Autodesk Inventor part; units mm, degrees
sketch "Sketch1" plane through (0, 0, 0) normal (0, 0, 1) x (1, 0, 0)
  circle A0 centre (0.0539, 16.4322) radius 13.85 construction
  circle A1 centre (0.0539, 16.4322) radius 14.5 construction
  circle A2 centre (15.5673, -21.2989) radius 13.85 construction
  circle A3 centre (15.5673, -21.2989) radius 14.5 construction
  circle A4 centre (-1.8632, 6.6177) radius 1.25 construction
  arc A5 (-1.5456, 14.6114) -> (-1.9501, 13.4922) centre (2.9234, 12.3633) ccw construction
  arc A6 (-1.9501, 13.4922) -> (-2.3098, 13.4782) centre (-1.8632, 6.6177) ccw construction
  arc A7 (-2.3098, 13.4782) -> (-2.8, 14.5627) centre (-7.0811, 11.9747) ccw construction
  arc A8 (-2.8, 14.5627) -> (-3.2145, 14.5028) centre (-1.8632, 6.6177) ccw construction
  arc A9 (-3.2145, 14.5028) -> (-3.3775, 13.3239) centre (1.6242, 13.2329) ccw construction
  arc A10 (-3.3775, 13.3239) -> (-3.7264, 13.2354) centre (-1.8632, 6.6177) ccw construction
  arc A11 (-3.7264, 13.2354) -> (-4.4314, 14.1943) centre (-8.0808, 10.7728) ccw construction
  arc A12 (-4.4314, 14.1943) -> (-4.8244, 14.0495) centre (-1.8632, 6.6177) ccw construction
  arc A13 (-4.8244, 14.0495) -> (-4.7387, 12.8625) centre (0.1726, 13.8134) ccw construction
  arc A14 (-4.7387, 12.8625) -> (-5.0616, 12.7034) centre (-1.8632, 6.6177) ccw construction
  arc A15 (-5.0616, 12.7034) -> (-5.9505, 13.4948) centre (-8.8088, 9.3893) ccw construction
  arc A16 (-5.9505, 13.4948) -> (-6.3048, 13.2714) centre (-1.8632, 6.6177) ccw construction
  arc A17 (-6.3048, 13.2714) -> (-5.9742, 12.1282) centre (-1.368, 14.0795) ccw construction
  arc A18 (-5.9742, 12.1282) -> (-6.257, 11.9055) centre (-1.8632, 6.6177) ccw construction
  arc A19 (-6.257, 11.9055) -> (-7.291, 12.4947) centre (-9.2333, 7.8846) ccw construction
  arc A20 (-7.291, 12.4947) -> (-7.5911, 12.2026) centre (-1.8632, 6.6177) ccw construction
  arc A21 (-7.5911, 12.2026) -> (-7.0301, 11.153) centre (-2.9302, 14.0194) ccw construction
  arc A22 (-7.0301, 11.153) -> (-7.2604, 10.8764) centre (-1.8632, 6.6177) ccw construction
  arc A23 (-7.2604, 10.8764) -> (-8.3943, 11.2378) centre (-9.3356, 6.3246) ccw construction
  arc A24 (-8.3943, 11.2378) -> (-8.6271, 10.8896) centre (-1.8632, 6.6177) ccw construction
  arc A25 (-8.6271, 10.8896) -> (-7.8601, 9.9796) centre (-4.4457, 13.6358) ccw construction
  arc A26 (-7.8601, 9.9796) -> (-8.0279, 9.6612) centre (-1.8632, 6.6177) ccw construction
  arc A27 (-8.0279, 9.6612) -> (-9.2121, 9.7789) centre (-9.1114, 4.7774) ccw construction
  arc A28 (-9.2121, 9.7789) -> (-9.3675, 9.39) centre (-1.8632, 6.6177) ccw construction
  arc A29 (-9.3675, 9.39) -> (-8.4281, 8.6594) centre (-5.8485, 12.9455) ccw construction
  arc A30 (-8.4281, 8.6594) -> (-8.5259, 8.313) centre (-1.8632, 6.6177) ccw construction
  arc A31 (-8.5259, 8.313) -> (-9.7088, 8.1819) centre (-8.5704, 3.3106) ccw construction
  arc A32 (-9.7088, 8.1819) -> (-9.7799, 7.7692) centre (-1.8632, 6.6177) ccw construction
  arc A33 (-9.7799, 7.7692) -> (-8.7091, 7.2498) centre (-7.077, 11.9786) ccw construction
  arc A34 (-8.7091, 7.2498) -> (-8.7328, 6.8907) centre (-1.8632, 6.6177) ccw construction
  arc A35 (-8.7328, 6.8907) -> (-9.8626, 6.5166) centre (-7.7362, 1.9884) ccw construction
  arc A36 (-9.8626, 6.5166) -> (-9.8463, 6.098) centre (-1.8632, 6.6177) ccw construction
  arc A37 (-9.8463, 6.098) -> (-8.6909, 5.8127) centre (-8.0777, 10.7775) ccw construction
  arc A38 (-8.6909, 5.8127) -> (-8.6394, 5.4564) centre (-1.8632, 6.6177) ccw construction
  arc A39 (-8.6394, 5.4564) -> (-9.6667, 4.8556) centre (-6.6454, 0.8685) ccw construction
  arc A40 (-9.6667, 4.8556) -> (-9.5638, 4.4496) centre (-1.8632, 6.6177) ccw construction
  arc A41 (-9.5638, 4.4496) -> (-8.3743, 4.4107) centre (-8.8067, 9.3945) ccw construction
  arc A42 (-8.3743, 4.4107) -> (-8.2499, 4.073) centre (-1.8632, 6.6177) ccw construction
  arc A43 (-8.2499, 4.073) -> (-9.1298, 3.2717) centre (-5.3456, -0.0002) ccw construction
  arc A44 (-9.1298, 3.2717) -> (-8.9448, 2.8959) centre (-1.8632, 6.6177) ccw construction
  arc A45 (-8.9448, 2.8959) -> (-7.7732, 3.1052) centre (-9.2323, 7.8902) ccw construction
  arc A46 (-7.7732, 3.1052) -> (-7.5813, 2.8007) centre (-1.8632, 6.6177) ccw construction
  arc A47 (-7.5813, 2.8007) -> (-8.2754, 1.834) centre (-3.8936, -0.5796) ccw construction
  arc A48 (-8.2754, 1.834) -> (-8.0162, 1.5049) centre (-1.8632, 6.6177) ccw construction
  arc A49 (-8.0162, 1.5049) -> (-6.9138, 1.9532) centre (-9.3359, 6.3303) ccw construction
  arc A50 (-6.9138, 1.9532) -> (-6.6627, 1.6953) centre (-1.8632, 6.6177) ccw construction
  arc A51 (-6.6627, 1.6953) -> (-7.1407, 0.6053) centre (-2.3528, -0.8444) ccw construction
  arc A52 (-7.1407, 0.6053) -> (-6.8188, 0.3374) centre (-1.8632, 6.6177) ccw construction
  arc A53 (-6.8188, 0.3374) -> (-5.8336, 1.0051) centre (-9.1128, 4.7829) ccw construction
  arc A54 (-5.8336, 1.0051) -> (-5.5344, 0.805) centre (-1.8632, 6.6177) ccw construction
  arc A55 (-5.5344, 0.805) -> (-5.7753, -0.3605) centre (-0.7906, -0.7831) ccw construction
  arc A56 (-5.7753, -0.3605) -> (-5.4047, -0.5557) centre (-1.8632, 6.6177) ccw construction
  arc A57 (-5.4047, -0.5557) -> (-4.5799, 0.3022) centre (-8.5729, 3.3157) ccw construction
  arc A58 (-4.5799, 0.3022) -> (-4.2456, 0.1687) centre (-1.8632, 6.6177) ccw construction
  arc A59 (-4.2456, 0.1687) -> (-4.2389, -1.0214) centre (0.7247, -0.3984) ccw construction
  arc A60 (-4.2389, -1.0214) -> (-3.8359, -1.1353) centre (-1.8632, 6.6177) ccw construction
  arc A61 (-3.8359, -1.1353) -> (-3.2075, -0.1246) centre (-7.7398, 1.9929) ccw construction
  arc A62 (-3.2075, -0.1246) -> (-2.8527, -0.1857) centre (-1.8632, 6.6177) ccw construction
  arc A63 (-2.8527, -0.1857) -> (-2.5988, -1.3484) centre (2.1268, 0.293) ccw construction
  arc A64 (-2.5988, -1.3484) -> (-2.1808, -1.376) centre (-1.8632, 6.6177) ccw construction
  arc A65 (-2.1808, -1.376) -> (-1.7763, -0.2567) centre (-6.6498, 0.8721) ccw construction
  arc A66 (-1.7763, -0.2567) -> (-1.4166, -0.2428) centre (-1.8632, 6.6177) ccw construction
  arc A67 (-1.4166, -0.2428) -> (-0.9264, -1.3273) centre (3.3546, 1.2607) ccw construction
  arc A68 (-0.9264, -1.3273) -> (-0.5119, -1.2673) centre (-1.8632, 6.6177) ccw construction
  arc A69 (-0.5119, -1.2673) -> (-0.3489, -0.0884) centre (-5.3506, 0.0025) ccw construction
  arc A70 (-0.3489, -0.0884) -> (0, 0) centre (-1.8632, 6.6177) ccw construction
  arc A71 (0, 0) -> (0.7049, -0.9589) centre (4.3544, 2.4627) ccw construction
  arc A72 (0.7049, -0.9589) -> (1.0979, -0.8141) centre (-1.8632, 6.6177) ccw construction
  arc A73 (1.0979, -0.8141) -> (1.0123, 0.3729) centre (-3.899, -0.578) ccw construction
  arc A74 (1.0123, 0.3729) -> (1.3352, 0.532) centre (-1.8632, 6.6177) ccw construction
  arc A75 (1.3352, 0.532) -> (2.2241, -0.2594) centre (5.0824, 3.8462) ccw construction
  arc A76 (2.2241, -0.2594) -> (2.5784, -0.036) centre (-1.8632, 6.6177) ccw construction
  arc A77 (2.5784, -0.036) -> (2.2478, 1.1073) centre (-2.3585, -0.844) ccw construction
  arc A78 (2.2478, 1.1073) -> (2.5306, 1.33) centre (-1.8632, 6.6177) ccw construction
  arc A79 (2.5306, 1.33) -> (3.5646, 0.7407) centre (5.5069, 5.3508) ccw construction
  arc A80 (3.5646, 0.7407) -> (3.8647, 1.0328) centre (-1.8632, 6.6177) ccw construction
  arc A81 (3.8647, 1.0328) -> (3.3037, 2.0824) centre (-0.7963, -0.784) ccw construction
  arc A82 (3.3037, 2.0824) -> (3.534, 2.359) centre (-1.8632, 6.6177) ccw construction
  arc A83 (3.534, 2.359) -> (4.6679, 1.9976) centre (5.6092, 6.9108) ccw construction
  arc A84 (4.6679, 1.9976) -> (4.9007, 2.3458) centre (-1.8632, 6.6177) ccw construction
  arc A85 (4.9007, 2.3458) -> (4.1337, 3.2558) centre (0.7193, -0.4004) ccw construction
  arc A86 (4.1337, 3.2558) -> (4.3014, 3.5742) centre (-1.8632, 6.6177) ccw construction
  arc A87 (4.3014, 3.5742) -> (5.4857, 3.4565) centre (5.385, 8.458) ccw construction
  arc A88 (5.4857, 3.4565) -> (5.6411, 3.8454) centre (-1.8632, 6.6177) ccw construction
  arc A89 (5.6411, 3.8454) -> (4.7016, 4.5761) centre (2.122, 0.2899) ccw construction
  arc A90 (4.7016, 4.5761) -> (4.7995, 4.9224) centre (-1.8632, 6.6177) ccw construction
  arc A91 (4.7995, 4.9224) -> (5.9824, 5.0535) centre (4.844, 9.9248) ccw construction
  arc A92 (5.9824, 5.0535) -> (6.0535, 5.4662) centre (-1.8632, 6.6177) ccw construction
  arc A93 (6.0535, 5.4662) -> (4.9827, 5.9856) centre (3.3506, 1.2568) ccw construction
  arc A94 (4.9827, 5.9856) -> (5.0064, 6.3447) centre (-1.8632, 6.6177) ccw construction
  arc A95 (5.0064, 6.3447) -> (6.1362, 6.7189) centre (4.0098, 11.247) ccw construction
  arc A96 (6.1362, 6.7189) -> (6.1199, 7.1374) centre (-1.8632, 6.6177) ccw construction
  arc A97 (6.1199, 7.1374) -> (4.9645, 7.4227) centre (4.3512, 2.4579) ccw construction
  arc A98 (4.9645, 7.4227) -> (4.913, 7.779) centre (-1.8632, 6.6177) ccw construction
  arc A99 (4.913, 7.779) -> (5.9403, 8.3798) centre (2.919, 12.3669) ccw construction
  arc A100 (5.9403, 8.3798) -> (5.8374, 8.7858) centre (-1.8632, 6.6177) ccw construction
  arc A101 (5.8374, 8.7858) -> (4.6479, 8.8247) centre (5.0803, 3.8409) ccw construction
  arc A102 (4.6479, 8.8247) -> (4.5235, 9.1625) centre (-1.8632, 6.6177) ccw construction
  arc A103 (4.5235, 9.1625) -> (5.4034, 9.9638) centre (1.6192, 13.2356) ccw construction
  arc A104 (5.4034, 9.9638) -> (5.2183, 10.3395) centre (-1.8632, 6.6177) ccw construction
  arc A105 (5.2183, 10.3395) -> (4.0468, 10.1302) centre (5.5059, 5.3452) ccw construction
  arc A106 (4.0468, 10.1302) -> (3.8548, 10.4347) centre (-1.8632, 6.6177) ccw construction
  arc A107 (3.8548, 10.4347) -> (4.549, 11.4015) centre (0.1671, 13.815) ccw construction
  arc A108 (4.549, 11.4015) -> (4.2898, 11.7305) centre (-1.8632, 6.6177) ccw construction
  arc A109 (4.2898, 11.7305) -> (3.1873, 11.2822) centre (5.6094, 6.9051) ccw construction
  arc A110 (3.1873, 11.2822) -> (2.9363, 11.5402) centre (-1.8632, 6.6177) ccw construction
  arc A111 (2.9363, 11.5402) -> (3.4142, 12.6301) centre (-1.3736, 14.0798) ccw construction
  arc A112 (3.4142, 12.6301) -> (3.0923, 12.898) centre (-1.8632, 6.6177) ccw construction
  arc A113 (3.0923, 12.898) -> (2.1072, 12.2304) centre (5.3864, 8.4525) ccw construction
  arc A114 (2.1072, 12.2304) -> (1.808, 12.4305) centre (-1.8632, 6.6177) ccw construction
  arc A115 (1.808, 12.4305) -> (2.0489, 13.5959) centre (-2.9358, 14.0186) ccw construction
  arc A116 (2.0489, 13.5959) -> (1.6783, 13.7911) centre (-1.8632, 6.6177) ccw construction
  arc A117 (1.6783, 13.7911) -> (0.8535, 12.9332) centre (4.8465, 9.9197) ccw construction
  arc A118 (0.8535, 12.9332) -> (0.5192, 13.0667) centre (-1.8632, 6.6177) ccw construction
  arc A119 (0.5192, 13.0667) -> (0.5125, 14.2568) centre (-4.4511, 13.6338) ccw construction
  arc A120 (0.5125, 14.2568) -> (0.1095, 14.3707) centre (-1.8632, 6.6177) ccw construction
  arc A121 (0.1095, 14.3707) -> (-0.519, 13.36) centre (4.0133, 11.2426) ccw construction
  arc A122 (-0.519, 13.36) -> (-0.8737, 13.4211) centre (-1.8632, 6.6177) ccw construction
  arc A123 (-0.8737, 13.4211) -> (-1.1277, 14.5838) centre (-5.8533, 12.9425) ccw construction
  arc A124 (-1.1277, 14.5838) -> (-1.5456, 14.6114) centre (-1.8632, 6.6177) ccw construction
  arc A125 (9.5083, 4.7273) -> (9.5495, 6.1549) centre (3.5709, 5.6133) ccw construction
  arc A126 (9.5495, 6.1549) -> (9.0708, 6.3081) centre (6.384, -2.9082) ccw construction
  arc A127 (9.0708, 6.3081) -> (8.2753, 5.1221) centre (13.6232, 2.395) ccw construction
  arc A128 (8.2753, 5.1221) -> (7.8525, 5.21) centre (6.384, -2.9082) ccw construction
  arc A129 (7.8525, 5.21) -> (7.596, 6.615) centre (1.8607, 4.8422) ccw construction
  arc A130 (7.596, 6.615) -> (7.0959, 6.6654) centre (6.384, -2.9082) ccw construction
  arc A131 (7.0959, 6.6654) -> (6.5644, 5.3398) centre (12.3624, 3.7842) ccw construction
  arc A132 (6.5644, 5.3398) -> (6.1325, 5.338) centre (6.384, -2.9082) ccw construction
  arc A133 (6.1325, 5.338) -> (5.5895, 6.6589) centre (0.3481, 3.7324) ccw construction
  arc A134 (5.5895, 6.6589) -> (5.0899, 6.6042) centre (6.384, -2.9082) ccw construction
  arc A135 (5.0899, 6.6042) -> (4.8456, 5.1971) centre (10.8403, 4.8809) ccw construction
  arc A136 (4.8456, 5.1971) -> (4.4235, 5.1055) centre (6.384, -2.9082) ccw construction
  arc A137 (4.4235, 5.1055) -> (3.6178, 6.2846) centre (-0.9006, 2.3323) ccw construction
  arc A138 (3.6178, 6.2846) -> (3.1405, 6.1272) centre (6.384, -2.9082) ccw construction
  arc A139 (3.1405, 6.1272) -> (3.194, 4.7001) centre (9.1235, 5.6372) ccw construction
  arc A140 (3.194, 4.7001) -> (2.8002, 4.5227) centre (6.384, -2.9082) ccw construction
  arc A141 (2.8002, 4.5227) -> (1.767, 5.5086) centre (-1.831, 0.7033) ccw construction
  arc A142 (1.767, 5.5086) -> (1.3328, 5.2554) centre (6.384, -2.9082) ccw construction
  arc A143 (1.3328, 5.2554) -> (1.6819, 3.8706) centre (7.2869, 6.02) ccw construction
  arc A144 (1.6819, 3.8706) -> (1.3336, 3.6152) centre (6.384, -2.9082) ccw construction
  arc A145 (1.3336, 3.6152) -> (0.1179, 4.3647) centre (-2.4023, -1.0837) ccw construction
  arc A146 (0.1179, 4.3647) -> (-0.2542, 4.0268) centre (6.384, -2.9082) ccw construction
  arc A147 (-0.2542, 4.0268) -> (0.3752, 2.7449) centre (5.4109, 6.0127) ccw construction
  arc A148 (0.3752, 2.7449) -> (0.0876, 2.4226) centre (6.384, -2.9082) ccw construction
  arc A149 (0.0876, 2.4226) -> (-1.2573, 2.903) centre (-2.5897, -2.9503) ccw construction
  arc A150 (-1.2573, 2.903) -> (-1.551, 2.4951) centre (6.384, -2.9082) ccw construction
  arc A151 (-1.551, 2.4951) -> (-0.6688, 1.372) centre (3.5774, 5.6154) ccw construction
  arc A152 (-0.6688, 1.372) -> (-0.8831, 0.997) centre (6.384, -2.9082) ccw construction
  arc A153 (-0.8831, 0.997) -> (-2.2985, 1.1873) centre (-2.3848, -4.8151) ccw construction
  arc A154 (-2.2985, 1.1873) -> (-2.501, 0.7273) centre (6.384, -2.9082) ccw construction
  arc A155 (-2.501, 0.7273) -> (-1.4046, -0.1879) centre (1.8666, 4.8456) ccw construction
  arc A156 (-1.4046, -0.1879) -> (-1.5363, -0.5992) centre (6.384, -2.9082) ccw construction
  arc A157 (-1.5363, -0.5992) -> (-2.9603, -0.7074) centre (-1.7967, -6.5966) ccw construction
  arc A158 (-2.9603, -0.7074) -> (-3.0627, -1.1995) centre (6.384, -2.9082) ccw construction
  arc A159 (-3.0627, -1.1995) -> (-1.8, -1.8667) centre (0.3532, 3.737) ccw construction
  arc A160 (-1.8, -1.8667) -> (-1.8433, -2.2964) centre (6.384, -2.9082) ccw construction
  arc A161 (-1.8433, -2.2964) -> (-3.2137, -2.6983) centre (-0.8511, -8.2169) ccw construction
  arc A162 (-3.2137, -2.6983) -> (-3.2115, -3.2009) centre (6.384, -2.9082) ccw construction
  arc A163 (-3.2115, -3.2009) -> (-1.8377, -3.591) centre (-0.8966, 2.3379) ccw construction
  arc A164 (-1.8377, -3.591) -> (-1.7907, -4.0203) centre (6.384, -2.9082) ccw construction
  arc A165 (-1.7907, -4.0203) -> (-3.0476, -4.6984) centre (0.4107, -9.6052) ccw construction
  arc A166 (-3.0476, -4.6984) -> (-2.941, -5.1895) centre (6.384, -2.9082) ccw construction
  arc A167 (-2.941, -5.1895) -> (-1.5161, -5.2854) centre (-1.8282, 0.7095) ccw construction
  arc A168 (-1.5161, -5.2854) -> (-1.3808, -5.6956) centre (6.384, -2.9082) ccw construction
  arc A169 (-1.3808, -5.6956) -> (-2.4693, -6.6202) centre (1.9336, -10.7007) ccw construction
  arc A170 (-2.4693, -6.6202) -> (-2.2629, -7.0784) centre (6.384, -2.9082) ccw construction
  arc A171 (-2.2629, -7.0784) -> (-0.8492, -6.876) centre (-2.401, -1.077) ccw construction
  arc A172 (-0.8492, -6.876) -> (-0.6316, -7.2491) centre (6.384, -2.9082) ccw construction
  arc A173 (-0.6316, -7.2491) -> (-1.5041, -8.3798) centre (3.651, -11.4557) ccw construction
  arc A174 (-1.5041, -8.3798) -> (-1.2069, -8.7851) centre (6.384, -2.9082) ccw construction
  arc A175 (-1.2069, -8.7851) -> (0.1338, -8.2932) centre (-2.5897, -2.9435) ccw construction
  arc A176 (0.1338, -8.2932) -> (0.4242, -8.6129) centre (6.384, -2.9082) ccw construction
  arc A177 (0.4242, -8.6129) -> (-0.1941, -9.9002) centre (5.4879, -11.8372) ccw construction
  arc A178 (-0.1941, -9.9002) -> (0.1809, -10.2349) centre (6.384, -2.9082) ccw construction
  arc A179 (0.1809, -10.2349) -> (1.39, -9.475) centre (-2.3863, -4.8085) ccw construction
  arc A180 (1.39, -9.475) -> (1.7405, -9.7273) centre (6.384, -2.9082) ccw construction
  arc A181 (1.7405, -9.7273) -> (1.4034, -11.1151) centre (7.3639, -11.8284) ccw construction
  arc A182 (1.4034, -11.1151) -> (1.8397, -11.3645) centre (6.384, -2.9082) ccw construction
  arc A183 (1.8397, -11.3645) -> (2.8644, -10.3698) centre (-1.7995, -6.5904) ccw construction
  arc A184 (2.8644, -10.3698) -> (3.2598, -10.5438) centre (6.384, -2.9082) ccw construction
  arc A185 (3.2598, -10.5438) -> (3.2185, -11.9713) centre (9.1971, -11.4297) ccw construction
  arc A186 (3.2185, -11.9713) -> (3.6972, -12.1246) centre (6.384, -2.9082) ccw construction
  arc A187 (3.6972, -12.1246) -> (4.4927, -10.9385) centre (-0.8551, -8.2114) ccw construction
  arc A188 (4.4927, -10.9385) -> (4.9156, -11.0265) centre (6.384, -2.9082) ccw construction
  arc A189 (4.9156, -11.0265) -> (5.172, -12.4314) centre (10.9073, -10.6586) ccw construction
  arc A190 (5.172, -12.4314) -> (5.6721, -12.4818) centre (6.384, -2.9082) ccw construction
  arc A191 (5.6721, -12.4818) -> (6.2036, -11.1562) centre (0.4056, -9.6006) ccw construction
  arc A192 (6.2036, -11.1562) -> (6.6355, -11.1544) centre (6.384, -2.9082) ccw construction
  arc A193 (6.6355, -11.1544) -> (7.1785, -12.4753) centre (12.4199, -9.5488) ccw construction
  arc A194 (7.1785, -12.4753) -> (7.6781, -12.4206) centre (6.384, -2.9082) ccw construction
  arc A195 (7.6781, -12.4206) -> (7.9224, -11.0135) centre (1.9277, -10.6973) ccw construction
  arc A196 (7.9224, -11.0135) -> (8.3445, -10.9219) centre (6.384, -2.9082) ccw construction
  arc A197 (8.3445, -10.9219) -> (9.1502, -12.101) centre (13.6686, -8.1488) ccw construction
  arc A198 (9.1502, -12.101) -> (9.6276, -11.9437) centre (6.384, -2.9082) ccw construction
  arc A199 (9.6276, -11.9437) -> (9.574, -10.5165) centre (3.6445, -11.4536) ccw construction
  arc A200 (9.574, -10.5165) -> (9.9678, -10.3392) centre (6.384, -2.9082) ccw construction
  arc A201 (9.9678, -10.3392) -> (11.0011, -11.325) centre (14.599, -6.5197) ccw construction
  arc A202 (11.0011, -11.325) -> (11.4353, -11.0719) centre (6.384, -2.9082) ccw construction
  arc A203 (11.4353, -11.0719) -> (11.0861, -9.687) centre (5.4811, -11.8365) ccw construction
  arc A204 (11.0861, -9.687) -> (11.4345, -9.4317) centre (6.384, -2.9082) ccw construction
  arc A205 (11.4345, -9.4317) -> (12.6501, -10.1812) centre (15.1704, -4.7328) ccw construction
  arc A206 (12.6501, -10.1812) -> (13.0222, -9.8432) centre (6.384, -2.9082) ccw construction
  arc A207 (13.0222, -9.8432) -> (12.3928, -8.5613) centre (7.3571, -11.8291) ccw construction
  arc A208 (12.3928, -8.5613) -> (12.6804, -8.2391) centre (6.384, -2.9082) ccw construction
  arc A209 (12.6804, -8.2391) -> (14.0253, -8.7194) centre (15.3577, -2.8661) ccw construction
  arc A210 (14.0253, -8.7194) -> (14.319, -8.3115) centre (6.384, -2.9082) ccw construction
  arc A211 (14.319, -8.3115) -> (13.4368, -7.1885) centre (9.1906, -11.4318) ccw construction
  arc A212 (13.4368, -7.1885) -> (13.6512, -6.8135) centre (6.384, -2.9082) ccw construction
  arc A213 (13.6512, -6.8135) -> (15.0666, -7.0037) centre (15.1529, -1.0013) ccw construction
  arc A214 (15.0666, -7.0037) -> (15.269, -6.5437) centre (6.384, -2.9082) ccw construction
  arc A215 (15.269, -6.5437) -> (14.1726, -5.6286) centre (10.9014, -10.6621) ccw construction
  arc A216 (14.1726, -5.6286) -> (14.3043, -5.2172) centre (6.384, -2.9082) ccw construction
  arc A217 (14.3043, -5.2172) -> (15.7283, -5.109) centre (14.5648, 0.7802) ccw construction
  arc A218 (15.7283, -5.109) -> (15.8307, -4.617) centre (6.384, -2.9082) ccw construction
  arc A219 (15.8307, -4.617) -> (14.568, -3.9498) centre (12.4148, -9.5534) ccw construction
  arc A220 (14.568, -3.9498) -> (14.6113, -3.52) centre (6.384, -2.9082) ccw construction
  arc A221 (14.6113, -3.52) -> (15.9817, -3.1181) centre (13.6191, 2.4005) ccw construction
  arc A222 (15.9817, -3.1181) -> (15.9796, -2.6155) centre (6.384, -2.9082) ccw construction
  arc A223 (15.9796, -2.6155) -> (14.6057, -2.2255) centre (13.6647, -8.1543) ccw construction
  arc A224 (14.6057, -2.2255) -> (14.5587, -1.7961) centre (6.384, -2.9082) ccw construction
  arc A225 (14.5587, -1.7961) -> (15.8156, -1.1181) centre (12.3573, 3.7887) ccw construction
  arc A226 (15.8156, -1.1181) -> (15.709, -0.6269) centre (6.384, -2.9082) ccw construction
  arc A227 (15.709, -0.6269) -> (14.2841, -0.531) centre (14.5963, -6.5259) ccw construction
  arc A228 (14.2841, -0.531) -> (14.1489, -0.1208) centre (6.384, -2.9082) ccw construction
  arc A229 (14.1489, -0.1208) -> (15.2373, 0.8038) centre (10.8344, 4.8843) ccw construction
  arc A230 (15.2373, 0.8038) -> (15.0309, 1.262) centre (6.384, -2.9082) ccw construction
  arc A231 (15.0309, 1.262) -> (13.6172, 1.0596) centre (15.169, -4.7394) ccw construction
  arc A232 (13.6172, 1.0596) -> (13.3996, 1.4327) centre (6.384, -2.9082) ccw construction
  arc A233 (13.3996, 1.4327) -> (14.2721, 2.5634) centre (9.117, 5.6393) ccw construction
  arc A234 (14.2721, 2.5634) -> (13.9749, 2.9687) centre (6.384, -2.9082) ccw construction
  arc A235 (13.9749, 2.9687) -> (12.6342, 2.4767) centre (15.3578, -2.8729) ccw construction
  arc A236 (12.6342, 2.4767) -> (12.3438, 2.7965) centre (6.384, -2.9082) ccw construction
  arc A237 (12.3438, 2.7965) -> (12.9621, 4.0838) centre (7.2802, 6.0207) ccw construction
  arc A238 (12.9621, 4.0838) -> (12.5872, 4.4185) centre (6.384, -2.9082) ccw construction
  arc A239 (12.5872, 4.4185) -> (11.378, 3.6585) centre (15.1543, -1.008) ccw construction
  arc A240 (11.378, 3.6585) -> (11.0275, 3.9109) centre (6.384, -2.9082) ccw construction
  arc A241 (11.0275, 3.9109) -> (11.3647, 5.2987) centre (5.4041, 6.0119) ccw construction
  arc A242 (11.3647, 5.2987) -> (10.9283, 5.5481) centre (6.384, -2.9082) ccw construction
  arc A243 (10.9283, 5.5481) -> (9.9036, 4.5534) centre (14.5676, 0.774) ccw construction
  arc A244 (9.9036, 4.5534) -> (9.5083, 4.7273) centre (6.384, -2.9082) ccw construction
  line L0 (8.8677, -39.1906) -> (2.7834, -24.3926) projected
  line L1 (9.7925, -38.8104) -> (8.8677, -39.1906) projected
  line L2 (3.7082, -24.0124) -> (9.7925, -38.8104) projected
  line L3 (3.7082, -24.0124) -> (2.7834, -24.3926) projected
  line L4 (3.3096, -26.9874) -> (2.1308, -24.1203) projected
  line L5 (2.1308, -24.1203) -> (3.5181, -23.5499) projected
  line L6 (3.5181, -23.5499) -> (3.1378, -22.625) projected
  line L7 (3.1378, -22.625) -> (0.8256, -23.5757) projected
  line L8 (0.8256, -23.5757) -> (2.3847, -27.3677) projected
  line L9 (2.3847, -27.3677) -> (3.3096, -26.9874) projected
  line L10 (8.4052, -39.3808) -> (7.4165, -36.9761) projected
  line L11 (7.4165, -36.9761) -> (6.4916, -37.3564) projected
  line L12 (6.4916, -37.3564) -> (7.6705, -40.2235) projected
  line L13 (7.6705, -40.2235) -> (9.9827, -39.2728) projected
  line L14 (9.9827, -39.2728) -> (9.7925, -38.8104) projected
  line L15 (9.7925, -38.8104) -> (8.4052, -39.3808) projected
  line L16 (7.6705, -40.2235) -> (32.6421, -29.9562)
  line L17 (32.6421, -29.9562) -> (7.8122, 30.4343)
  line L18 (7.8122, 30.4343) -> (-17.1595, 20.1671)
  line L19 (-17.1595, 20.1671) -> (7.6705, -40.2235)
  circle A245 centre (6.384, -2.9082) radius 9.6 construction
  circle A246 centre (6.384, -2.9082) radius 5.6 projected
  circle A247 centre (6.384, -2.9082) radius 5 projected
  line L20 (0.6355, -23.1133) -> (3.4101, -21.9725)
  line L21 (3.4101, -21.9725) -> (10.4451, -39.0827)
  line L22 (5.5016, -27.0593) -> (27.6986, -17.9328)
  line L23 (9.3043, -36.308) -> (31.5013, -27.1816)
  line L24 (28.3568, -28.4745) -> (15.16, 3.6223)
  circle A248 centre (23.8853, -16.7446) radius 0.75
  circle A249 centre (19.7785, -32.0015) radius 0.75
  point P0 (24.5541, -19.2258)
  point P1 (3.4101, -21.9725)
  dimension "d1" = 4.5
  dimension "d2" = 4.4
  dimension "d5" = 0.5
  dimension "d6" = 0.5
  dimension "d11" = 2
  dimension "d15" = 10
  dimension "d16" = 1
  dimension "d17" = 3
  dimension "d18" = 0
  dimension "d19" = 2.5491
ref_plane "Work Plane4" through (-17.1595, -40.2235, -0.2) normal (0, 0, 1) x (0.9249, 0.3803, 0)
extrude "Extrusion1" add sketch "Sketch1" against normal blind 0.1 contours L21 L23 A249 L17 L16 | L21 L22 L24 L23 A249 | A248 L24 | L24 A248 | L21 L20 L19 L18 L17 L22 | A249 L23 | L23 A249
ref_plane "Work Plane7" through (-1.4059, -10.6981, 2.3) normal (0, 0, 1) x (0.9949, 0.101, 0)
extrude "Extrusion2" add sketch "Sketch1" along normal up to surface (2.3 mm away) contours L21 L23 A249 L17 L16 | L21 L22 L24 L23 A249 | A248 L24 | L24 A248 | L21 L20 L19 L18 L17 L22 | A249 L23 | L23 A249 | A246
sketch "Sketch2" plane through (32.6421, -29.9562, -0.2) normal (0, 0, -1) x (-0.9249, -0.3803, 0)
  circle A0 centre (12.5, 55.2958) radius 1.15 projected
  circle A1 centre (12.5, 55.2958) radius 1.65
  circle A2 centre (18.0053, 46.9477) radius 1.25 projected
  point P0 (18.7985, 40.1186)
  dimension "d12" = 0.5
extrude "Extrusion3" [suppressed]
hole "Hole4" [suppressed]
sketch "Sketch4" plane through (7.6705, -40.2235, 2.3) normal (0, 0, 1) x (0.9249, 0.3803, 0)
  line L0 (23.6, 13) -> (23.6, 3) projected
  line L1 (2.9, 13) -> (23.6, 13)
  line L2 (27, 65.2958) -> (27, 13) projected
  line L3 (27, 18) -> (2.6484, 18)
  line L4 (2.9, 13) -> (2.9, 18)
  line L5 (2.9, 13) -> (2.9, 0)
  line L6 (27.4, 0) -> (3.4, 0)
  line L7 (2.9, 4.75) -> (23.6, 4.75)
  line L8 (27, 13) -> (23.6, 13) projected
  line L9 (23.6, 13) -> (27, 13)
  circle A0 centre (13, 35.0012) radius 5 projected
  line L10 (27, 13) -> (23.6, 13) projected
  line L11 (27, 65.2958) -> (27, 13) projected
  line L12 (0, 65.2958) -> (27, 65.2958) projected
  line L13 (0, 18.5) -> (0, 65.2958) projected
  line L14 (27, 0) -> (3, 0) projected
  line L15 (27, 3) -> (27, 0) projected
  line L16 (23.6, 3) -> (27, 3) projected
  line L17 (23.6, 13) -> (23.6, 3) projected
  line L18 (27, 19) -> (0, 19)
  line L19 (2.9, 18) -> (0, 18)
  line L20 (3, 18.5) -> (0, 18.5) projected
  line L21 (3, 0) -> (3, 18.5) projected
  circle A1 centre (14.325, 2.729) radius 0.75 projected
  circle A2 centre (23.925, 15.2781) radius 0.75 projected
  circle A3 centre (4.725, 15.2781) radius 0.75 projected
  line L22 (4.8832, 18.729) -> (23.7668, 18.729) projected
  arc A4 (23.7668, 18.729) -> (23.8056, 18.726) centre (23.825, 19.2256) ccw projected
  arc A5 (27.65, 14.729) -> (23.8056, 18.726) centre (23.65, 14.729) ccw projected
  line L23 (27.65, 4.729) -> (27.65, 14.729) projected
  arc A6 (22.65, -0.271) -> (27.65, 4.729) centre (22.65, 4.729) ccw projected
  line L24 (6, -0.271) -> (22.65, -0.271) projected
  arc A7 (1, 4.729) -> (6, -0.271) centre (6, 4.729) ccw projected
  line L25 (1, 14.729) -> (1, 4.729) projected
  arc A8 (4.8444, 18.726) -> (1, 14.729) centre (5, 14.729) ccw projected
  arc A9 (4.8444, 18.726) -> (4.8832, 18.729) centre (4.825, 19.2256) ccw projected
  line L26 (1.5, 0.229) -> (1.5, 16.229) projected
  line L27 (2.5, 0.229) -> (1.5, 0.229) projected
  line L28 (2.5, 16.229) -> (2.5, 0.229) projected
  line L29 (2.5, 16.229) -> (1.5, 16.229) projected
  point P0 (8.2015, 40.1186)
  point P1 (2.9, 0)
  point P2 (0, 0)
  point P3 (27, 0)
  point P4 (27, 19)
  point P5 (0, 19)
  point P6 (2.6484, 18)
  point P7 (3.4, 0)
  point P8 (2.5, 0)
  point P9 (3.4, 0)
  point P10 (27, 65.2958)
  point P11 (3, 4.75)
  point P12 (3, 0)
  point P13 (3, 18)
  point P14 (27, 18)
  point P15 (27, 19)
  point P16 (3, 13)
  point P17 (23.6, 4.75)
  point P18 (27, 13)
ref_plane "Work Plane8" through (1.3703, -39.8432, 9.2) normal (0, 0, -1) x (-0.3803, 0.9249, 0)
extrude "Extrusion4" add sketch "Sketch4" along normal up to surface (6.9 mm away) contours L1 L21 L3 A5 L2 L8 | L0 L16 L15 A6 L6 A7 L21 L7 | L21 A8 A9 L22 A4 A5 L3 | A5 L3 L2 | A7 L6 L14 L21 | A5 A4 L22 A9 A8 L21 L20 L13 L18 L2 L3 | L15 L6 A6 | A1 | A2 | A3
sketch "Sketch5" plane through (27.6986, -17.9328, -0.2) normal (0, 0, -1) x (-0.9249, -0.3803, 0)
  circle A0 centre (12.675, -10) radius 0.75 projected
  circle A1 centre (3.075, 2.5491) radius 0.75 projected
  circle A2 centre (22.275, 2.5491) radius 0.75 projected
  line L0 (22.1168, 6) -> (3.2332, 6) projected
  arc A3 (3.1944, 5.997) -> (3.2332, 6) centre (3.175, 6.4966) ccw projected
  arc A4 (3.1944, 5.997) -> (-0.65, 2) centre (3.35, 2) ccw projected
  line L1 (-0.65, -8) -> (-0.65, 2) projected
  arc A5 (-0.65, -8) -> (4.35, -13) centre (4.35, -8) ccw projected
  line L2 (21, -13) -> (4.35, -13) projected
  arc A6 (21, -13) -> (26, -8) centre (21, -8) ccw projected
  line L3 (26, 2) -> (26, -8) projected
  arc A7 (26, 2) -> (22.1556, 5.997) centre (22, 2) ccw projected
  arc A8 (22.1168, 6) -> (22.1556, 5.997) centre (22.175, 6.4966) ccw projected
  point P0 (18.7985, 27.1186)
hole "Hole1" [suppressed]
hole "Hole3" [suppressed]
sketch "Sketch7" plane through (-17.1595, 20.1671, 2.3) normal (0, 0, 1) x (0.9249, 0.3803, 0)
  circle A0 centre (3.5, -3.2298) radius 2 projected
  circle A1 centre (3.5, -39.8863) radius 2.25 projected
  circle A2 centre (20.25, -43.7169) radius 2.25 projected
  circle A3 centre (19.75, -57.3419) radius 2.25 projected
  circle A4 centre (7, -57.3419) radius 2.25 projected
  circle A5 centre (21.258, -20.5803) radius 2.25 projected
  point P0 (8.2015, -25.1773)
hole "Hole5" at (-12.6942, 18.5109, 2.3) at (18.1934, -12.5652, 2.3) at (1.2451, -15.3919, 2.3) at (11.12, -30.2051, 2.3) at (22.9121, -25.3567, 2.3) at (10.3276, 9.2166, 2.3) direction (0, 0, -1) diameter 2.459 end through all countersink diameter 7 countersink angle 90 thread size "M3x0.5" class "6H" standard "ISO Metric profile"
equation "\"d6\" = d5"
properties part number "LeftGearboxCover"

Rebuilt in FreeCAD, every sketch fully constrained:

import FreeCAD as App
import Part
import Sketcher

V = App.Vector
Q = App.Units.Quantity

doc = App.newDocument("Part")
body = doc.addObject("PartDesign::Body", "Body")

sketch1 = body.newObject("Sketcher::SketchObject", "Sketch")
sketch1.AttachmentSupport = (doc.getObject("XY_Plane"), [""])
sketch1.MapMode = "FlatFace"
sketch1.addGeometry(Part.LineSegment(V(10.4, -39.1, 0), V(32.6, -30, 0)), False)
sketch1.addGeometry(Part.LineSegment(V(32.6, -30, 0), V(31.5, -27.2, 0)), False)
sketch1.addGeometry(Part.LineSegment(V(31.5, -27.2, 0), V(28.4, -28.5, 0)), False)
sketch1.addGeometry(Part.LineSegment(V(28.4, -28.5, 0), V(24.6, -19.2, 0)), False)
sketch1.addGeometry(Part.LineSegment(V(24.6, -19.2, 0), V(27.7, -17.9, 0)), False)
sketch1.addGeometry(Part.LineSegment(V(27.7, -17.9, 0), V(7.8, 30.4, 0)), False)
sketch1.addGeometry(Part.LineSegment(V(7.8, 30.4, 0), V(-17.2, 20.2, 0)), False)
sketch1.addGeometry(Part.LineSegment(V(-17.2, 20.2, 0), V(0.6, -23.1, 0)), False)
sketch1.addGeometry(Part.LineSegment(V(0.6, -23.1, 0), V(3.4, -22, 0)), False)
sketch1.addGeometry(Part.LineSegment(V(3.4, -22, 0), V(10.4, -39.1, 0)), False)
sketch1.addGeometry(Part.Circle(V(6.4, -2.9, 0), V(0, 0, 1), 5.6), False)
sketch1.addConstraint(Sketcher.Constraint("Coincident", 0, 2, 1, 1))
sketch1.addConstraint(Sketcher.Constraint("Coincident", 1, 2, 2, 1))
sketch1.addConstraint(Sketcher.Constraint("Coincident", 2, 2, 3, 1))
sketch1.addConstraint(Sketcher.Constraint("Coincident", 3, 2, 4, 1))
sketch1.addConstraint(Sketcher.Constraint("Coincident", 4, 2, 5, 1))
sketch1.addConstraint(Sketcher.Constraint("Coincident", 5, 2, 6, 1))
sketch1.addConstraint(Sketcher.Constraint("Coincident", 6, 2, 7, 1))
sketch1.addConstraint(Sketcher.Constraint("Coincident", 7, 2, 8, 1))
sketch1.addConstraint(Sketcher.Constraint("Coincident", 8, 2, 9, 1))
sketch1.addConstraint(Sketcher.Constraint("Coincident", 9, 2, 0, 1))
sketch1.addConstraint(Sketcher.Constraint("Perpendicular", 0, 1))
sketch1.addConstraint(Sketcher.Constraint("Perpendicular", 1, 2))
sketch1.addConstraint(Sketcher.Constraint("Perpendicular", 2, 3))
sketch1.addConstraint(Sketcher.Constraint("Perpendicular", 3, 4))
sketch1.addConstraint(Sketcher.Constraint("Perpendicular", 4, 5))
sketch1.addConstraint(Sketcher.Constraint("Perpendicular", 5, 6))
sketch1.addConstraint(Sketcher.Constraint("Perpendicular", 6, 7))
sketch1.addConstraint(Sketcher.Constraint("Perpendicular", 7, 8))
sketch1.addConstraint(Sketcher.Constraint("Perpendicular", 8, 9))
sketch1.addConstraint(Sketcher.Constraint("Equal", 2, 4))
sketch1.addConstraint(Sketcher.Constraint("Equal", 1, 8))
sketch1.addConstraint(Sketcher.Constraint("Distance", 1, 3.0))
sketch1.addConstraint(Sketcher.Constraint("Distance", 3, 10.0))
sketch1.addConstraint(Sketcher.Constraint("Diameter", 10, 11.2))
sketch1.addConstraint(Sketcher.Constraint("Distance", 0, 24.0))
sketch1.addConstraint(Sketcher.Constraint("Distance", 2, 3.4))
sketch1.addConstraint(Sketcher.Constraint("Distance", 9, 18.5))
sketch1.addConstraint(Sketcher.Constraint("Angle", 0, Q("22.3505 deg")))
sketch1.addConstraint(Sketcher.Constraint("DistanceY", 4, 2, 6, 2, 38.1))
sketch1.addConstraint(Sketcher.Constraint("DistanceX", -1, 1, 8, 2, 3.41))
sketch1.addConstraint(Sketcher.Constraint("DistanceX", 10, 3, 3, 2, 18.17))
sketch1.addConstraint(Sketcher.Constraint("DistanceY", -1, 1, 6, 2, 20.167))
sketch1.addConstraint(Sketcher.Constraint("DistanceY", 0, 2, 10, 3, 27.048))
pad1 = body.newObject("PartDesign::Pad", "Pad")
pad1.Profile = sketch1
pad1.Length = 0.1
pad1.Reversed = True

sketch2 = body.newObject("Sketcher::SketchObject", "Sketch001")
sketch2.AttachmentSupport = (doc.getObject("XY_Plane"), [""])
sketch2.MapMode = "FlatFace"
sketch2.addGeometry(Part.LineSegment(V(10.4, -39.1, 0), V(32.6, -30, 0)), False)
sketch2.addGeometry(Part.LineSegment(V(32.6, -30, 0), V(31.5, -27.2, 0)), False)
sketch2.addGeometry(Part.LineSegment(V(31.5, -27.2, 0), V(28.4, -28.5, 0)), False)
sketch2.addGeometry(Part.LineSegment(V(28.4, -28.5, 0), V(24.6, -19.2, 0)), False)
sketch2.addGeometry(Part.LineSegment(V(24.6, -19.2, 0), V(27.7, -17.9, 0)), False)
sketch2.addGeometry(Part.LineSegment(V(27.7, -17.9, 0), V(7.8, 30.4, 0)), False)
sketch2.addGeometry(Part.LineSegment(V(7.8, 30.4, 0), V(-17.2, 20.2, 0)), False)
sketch2.addGeometry(Part.LineSegment(V(-17.2, 20.2, 0), V(0.6, -23.1, 0)), False)
sketch2.addGeometry(Part.LineSegment(V(0.6, -23.1, 0), V(3.4, -22, 0)), False)
sketch2.addGeometry(Part.LineSegment(V(3.4, -22, 0), V(10.4, -39.1, 0)), False)
sketch2.addGeometry(Part.Circle(V(6.4, -2.9, 0), V(0, 0, 1), 5), False)
sketch2.addConstraint(Sketcher.Constraint("Coincident", 0, 2, 1, 1))
sketch2.addConstraint(Sketcher.Constraint("Coincident", 1, 2, 2, 1))
sketch2.addConstraint(Sketcher.Constraint("Coincident", 2, 2, 3, 1))
sketch2.addConstraint(Sketcher.Constraint("Coincident", 3, 2, 4, 1))
sketch2.addConstraint(Sketcher.Constraint("Coincident", 4, 2, 5, 1))
sketch2.addConstraint(Sketcher.Constraint("Coincident", 5, 2, 6, 1))
sketch2.addConstraint(Sketcher.Constraint("Coincident", 6, 2, 7, 1))
sketch2.addConstraint(Sketcher.Constraint("Coincident", 7, 2, 8, 1))
sketch2.addConstraint(Sketcher.Constraint("Coincident", 8, 2, 9, 1))
sketch2.addConstraint(Sketcher.Constraint("Coincident", 9, 2, 0, 1))
sketch2.addConstraint(Sketcher.Constraint("Perpendicular", 0, 1))
sketch2.addConstraint(Sketcher.Constraint("Perpendicular", 1, 2))
sketch2.addConstraint(Sketcher.Constraint("Perpendicular", 2, 3))
sketch2.addConstraint(Sketcher.Constraint("Perpendicular", 3, 4))
sketch2.addConstraint(Sketcher.Constraint("Perpendicular", 4, 5))
sketch2.addConstraint(Sketcher.Constraint("Perpendicular", 5, 6))
sketch2.addConstraint(Sketcher.Constraint("Perpendicular", 6, 7))
sketch2.addConstraint(Sketcher.Constraint("Perpendicular", 7, 8))
sketch2.addConstraint(Sketcher.Constraint("Perpendicular", 8, 9))
sketch2.addConstraint(Sketcher.Constraint("Equal", 2, 4))
sketch2.addConstraint(Sketcher.Constraint("Equal", 1, 8))
sketch2.addConstraint(Sketcher.Constraint("Diameter", 10, 10.0))
sketch2.addConstraint(Sketcher.Constraint("Distance", 1, 3.0))
sketch2.addConstraint(Sketcher.Constraint("Distance", 3, 10.0))
sketch2.addConstraint(Sketcher.Constraint("Distance", 0, 24.0))
sketch2.addConstraint(Sketcher.Constraint("Distance", 2, 3.4))
sketch2.addConstraint(Sketcher.Constraint("Distance", 9, 18.5))
sketch2.addConstraint(Sketcher.Constraint("Angle", 0, Q("22.3505 deg")))
sketch2.addConstraint(Sketcher.Constraint("DistanceY", 4, 2, 6, 2, 38.1))
sketch2.addConstraint(Sketcher.Constraint("DistanceX", -1, 1, 8, 2, 3.41))
sketch2.addConstraint(Sketcher.Constraint("DistanceX", 10, 3, 3, 2, 18.17))
sketch2.addConstraint(Sketcher.Constraint("DistanceY", -1, 1, 6, 2, 20.167))
sketch2.addConstraint(Sketcher.Constraint("DistanceY", 0, 2, 10, 3, 27.048))
pad2 = body.newObject("PartDesign::Pad", "Pad001")
pad2.Profile = sketch2
pad2.Length = 2.3

sketch3 = body.newObject("Sketcher::SketchObject", "Sketch002")
sketch3.AttachmentSupport = (doc.getObject("XY_Plane"), [""])
sketch3.MapMode = "FlatFace"
sketch3.AttachmentOffset = App.Placement(V(0, 0, 2.3), App.Rotation())
sketch3.addGeometry(Part.LineSegment(V(5.5, -27.1, 0), V(27.7, -17.9, 0)), False)
sketch3.addGeometry(Part.LineSegment(V(27.7, -17.9, 0), V(25.4, -12.4, 0)), False)
sketch3.addGeometry(Part.LineSegment(V(25.4, -12.4, 0), V(0.4, -22.7, 0)), False)
sketch3.addGeometry(Part.LineSegment(V(0.4, -22.7, 0), V(0.6, -23.1, 0)), False)
sketch3.addGeometry(Part.LineSegment(V(0.6, -23.1, 0), V(3.4, -22, 0)), False)
sketch3.addGeometry(Part.LineSegment(V(3.4, -22, 0), V(5.5, -27.1, 0)), False)
sketch3.addGeometry(Part.LineSegment(V(28.4, -28.5, 0), V(27.7, -26.9, 0)), False)
sketch3.addGeometry(Part.LineSegment(V(27.7, -26.9, 0), V(8.6, -34.7, 0)), False)
sketch3.addGeometry(Part.LineSegment(V(8.6, -34.7, 0), V(10.4, -39.1, 0)), False)
sketch3.addGeometry(Part.LineSegment(V(10.4, -39.1, 0), V(32.6, -30, 0)), False)
sketch3.addGeometry(Part.LineSegment(V(32.6, -30, 0), V(31.5, -27.2, 0)), False)
sketch3.addGeometry(Part.LineSegment(V(31.5, -27.2, 0), V(28.4, -28.5, 0)), False)
sketch3.addConstraint(Sketcher.Constraint("Coincident", 0, 2, 1, 1))
sketch3.addConstraint(Sketcher.Constraint("Coincident", 1, 2, 2, 1))
sketch3.addConstraint(Sketcher.Constraint("Coincident", 2, 2, 3, 1))
sketch3.addConstraint(Sketcher.Constraint("Coincident", 3, 2, 4, 1))
sketch3.addConstraint(Sketcher.Constraint("Coincident", 4, 2, 5, 1))
sketch3.addConstraint(Sketcher.Constraint("Coincident", 5, 2, 0, 1))
sketch3.addConstraint(Sketcher.Constraint("Coincident", 6, 2, 7, 1))
sketch3.addConstraint(Sketcher.Constraint("Coincident", 7, 2, 8, 1))
sketch3.addConstraint(Sketcher.Constraint("Coincident", 8, 2, 9, 1))
sketch3.addConstraint(Sketcher.Constraint("Coincident", 9, 2, 10, 1))
sketch3.addConstraint(Sketcher.Constraint("Coincident", 10, 2, 11, 1))
sketch3.addConstraint(Sketcher.Constraint("Coincident", 11, 2, 6, 1))
sketch3.addConstraint(Sketcher.Constraint("Perpendicular", 0, 1))
sketch3.addConstraint(Sketcher.Constraint("Perpendicular", 1, 2))
sketch3.addConstraint(Sketcher.Constraint("Perpendicular", 2, 3))
sketch3.addConstraint(Sketcher.Constraint("Perpendicular", 3, 4))
sketch3.addConstraint(Sketcher.Constraint("Perpendicular", 4, 5))
sketch3.addConstraint(Sketcher.Constraint("Parallel", 5, 6))
sketch3.addConstraint(Sketcher.Constraint("Perpendicular", 6, 7))
sketch3.addConstraint(Sketcher.Constraint("Perpendicular", 7, 8))
sketch3.addConstraint(Sketcher.Constraint("Perpendicular", 8, 9))
sketch3.addConstraint(Sketcher.Constraint("Perpendicular", 9, 10))
sketch3.addConstraint(Sketcher.Constraint("Perpendicular", 10, 11))
sketch3.addConstraint(Sketcher.Constraint("Equal", 0, 9))
sketch3.addConstraint(Sketcher.Constraint("Equal", 4, 10))
sketch3.addConstraint(Sketcher.Constraint("Distance", 0, 24.0))
sketch3.addConstraint(Sketcher.Constraint("Distance", 1, 6.0))
sketch3.addConstraint(Sketcher.Constraint("Distance", 2, 27.0))
sketch3.addConstraint(Sketcher.Constraint("DistanceX", 2, 2, 8, 2, 10.0))
sketch3.addConstraint(Sketcher.Constraint("Distance", 3, 0.5))
sketch3.addConstraint(Sketcher.Constraint("Distance", 7, 20.6))
sketch3.addConstraint(Sketcher.Constraint("Distance", 6, 1.75))
sketch3.addConstraint(Sketcher.Constraint("DistanceY", 4, 2, 0, 2, 4.04))
sketch3.addConstraint(Sketcher.Constraint("DistanceY", 8, 2, 4, 2, 17.11))
sketch3.addConstraint(Sketcher.Constraint("DistanceX", -1, 1, 2, 2, 0.445))
sketch3.addConstraint(Sketcher.Constraint("DistanceY", 2, 2, -1, 1, 22.651))
pad3 = body.newObject("PartDesign::Pad", "Pad002")
pad3.Profile = sketch3
pad3.Length = 6.9

sketch4 = body.newObject("Sketcher::SketchObject", "Sketch003")
sketch4.AttachmentSupport = (doc.getObject("XY_Plane"), [""])
sketch4.MapMode = "FlatFace"
sketch4.AttachmentOffset = App.Placement(V(0, 0, 2.3), App.Rotation())
sketch4.addGeometry(Part.Circle(V(-12.7, 18.5, 0), V(0, 0, 1), 1.2), False)
sketch4.addGeometry(Part.Circle(V(18.2, -12.6, 0), V(0, 0, 1), 1.2), False)
sketch4.addGeometry(Part.Circle(V(1.2, -15.4, 0), V(0, 0, 1), 1.2), False)
sketch4.addGeometry(Part.Circle(V(11.1, -30.2, 0), V(0, 0, 1), 1.2), False)
sketch4.addGeometry(Part.Circle(V(22.9, -25.4, 0), V(0, 0, 1), 1.2), False)
sketch4.addGeometry(Part.Circle(V(10.3, 9.2, 0), V(0, 0, 1), 1.2), False)
sketch4.addConstraint(Sketcher.Constraint("Equal", 0, 1))
sketch4.addConstraint(Sketcher.Constraint("Equal", 1, 2))
sketch4.addConstraint(Sketcher.Constraint("Equal", 2, 3))
sketch4.addConstraint(Sketcher.Constraint("Equal", 3, 4))
sketch4.addConstraint(Sketcher.Constraint("Equal", 4, 5))
sketch4.addConstraint(Sketcher.Constraint("Diameter", 0, 2.459))
sketch4.addConstraint(Sketcher.Constraint("DistanceX", -1, 1, 3, 3, 11.12))
sketch4.addConstraint(Sketcher.Constraint("DistanceY", 3, 3, 1, 3, 17.64))
sketch4.addConstraint(Sketcher.Constraint("DistanceY", -1, 1, 0, 3, 18.511))
sketch4.addConstraint(Sketcher.Constraint("DistanceX", -1, 1, 2, 3, 1.245))
sketch4.addConstraint(Sketcher.Constraint("DistanceY", 2, 3, -1, 1, 15.392))
sketch4.addConstraint(Sketcher.Constraint("DistanceY", 3, 3, -1, 1, 30.205))
sketch4.addConstraint(Sketcher.Constraint("DistanceX", -1, 1, 4, 3, 22.912))
sketch4.addConstraint(Sketcher.Constraint("DistanceX", 0, 3, -1, 1, 12.6942))
sketch4.addConstraint(Sketcher.Constraint("DistanceX", -1, 1, 1, 3, 18.1934))
sketch4.addConstraint(Sketcher.Constraint("DistanceY", 4, 3, -1, 1, 25.3567))
sketch4.addConstraint(Sketcher.Constraint("DistanceX", -1, 1, 5, 3, 10.3276))
sketch4.addConstraint(Sketcher.Constraint("DistanceY", -1, 1, 5, 3, 9.2166))
doc.recompute()
hole = body.newObject("PartDesign::Hole", "Hole")
hole.Profile = sketch4
hole.ThreadType = "None"
hole.Diameter = 2.459
hole.DepthType = "ThroughAll"
hole.HoleCutType = "Countersink"
hole.HoleCutDiameter = 7
hole.HoleCutCountersinkAngle = 90

doc.recompute()
